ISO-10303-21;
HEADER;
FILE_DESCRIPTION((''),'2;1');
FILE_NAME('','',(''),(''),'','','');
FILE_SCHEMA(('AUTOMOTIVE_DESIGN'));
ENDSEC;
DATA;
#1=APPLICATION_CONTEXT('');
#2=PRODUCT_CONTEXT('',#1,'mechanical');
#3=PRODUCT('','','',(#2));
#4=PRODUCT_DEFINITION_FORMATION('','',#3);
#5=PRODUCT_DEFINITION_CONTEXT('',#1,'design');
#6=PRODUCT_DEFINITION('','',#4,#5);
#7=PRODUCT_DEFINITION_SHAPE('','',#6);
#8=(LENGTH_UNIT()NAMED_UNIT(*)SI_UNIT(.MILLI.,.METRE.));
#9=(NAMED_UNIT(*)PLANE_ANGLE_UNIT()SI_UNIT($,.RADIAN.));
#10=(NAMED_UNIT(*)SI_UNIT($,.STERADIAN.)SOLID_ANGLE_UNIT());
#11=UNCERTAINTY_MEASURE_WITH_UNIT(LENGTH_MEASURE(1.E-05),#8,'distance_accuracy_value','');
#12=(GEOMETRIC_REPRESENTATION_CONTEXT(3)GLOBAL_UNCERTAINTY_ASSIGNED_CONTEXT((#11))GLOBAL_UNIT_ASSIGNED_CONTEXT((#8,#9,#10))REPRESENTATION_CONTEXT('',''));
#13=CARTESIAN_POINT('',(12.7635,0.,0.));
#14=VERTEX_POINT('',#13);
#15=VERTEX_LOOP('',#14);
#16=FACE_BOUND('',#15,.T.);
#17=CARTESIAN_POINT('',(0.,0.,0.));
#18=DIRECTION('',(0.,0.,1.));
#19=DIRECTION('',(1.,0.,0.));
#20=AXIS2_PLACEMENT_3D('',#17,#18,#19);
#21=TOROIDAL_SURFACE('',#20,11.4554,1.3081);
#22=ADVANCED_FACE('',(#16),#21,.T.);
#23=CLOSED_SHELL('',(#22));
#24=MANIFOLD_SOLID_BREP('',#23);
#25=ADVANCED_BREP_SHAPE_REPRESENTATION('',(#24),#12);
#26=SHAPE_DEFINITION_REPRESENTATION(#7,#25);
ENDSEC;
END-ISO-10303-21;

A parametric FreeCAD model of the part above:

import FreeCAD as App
import Part
import Sketcher
Q = App.Units.Quantity

doc = App.newDocument("Part")
body = doc.addObject("PartDesign::Body", "Body")

sketch1 = body.newObject("Sketcher::SketchObject", "Sketch")
sketch1.AttachmentSupport = (doc.getObject("YZ_Plane"), [""])
sketch1.MapMode = "FlatFace"
sketch1.addGeometry(Part.Circle(App.Vector(-11.4554, 0, 0), App.Vector(0, 0, 1), 1.3081), False)
sketch1.addConstraint([
    Sketcher.Constraint("PointOnObject", 0, 3, -1),
    Sketcher.Constraint("Diameter", 0, Q("0.103 in")),
    Sketcher.Constraint("DistanceX", 0, 3, -1, 1, Q("0.451 in")),
])
revolution = body.newObject("PartDesign::Revolution", "Revolution")
revolution.Profile = sketch1
revolution.ReferenceAxis = (sketch1, ["V_Axis"])
revolution.Angle = 360

doc.recompute()
